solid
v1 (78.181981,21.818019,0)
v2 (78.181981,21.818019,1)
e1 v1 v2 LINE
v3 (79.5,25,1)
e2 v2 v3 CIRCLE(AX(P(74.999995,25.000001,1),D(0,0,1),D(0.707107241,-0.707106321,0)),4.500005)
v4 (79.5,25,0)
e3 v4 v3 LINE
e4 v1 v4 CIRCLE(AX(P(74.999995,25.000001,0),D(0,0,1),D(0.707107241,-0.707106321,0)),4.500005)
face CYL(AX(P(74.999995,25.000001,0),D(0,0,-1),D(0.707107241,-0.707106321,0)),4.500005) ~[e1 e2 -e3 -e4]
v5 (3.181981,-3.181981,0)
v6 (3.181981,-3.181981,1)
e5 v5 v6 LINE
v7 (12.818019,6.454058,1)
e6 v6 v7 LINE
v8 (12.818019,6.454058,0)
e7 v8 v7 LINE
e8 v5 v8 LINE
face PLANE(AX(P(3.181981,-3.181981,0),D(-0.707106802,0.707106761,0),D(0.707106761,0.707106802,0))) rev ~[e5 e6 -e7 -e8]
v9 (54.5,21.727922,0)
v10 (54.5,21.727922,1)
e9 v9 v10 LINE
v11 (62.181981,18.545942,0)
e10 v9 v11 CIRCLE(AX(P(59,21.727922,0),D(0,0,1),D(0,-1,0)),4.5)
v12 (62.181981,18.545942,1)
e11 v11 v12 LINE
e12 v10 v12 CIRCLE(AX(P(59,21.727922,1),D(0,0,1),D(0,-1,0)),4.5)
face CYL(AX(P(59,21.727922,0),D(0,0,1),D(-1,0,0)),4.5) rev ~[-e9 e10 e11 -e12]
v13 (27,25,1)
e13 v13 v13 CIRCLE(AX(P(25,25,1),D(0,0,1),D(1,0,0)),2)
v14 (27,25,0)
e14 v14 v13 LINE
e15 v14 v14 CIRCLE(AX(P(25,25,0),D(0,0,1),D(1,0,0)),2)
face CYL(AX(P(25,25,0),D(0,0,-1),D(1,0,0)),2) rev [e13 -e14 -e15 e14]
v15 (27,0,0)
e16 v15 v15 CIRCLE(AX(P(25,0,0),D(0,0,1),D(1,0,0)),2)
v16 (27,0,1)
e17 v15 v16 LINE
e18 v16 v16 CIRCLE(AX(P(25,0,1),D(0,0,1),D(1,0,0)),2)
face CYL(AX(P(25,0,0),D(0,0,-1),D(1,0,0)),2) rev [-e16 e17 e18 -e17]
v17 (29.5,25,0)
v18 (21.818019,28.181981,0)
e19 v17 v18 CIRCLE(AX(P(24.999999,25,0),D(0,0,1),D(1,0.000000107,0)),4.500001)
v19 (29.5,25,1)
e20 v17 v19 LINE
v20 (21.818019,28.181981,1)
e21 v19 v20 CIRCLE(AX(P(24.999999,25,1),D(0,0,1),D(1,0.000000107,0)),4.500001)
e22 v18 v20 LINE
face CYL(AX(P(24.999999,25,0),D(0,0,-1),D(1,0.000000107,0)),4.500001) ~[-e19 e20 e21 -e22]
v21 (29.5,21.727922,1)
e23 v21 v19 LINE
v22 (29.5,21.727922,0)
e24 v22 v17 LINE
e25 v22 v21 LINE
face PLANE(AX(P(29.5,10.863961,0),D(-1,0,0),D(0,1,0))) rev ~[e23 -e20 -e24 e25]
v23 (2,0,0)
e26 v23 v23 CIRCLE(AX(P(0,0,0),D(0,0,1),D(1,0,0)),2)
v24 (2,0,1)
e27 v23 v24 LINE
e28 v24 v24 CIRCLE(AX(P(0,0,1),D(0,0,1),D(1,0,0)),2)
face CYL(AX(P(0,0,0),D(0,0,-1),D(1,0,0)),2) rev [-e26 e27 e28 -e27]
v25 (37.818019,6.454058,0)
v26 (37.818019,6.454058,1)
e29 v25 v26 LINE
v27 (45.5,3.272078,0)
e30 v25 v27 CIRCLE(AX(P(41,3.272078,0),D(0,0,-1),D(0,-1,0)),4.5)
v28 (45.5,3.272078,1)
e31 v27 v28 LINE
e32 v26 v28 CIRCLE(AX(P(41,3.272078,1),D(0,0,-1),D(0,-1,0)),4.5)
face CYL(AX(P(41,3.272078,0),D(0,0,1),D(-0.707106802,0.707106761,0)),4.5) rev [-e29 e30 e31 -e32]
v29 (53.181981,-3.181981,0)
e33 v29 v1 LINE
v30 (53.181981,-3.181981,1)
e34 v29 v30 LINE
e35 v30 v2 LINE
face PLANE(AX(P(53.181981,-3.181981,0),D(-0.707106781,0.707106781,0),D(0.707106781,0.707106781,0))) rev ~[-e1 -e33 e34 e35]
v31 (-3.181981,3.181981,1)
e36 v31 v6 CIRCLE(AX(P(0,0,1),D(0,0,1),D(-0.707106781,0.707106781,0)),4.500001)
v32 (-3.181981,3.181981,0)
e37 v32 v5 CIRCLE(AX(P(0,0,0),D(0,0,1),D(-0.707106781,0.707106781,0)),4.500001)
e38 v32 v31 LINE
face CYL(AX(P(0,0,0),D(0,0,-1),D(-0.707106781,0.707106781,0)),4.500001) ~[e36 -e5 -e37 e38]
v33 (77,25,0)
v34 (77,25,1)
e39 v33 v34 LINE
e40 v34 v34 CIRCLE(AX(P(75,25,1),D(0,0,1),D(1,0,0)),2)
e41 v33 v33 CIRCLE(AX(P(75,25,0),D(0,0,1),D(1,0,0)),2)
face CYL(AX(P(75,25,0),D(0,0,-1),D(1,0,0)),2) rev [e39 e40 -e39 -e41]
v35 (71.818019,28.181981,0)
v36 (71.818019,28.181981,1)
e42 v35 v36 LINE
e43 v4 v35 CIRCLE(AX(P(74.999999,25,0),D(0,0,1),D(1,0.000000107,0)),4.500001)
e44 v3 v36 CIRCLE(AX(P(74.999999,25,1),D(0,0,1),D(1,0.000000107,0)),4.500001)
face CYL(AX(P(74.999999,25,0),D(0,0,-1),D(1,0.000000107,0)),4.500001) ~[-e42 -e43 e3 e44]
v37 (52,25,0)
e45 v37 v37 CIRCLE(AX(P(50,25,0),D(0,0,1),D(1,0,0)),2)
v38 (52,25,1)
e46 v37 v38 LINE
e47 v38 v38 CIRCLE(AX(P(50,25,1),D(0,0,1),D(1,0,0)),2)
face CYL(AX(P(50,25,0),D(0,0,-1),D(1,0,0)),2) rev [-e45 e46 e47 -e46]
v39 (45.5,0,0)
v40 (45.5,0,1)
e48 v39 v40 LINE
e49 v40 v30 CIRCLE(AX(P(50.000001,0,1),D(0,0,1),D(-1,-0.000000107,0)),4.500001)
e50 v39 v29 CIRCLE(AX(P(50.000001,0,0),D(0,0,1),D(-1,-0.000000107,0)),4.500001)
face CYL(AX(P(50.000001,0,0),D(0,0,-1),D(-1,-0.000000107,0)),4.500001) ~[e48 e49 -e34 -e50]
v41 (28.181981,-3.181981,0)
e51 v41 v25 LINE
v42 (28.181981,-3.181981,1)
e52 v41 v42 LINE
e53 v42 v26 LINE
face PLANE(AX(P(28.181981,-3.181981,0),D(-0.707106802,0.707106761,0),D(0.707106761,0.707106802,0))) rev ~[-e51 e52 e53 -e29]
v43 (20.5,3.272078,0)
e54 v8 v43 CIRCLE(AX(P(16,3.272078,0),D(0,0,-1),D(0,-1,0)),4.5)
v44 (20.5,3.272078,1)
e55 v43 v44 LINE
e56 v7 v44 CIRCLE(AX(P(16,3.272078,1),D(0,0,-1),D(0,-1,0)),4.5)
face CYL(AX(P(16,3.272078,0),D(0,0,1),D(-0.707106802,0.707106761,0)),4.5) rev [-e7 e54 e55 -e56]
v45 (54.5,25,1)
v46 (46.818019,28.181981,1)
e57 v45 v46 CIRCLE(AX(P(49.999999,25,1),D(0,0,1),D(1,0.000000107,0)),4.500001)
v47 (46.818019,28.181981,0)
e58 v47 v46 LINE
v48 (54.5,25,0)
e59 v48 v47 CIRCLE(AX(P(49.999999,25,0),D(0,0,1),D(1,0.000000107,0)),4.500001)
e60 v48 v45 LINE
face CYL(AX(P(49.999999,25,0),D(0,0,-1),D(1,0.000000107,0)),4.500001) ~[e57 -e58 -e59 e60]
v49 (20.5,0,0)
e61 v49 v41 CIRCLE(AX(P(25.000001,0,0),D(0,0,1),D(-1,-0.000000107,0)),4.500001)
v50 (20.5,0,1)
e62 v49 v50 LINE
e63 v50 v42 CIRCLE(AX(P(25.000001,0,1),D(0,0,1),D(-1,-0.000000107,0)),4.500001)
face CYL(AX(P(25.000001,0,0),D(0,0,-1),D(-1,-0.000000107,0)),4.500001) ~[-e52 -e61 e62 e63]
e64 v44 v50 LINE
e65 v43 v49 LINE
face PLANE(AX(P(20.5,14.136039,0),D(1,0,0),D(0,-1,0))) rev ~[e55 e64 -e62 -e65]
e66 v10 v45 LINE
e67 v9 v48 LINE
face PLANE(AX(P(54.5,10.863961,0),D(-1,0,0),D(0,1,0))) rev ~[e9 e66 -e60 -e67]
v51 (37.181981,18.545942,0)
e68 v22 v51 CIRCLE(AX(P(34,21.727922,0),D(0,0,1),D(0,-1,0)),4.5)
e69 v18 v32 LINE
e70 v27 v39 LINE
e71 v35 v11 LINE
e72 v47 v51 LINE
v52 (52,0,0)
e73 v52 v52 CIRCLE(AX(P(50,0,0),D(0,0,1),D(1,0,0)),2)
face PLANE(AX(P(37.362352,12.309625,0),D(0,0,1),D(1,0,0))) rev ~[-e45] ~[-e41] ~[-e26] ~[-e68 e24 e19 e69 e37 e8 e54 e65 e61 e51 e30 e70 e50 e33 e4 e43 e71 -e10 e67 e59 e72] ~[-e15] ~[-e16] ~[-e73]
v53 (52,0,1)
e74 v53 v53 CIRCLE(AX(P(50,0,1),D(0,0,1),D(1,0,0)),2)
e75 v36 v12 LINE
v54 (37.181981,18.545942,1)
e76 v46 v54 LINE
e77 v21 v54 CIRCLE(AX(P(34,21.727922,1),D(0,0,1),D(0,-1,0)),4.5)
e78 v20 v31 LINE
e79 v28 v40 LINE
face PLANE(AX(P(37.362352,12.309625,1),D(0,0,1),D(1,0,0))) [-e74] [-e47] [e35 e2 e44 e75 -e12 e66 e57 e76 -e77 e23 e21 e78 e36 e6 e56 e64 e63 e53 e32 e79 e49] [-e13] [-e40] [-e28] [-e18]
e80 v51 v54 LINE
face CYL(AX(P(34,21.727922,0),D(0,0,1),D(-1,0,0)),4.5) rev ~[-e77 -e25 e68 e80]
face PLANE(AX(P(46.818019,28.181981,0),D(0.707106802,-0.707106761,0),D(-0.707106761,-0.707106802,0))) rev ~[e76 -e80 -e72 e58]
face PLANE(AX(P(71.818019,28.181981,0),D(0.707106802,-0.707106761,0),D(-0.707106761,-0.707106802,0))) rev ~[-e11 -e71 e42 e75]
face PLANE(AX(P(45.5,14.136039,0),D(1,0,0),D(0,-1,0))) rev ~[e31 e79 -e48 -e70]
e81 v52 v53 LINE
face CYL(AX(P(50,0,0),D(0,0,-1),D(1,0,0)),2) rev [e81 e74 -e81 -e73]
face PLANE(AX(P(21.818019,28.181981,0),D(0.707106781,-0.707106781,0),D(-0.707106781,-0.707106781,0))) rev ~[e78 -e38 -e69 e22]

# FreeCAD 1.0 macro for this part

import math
import FreeCAD as App
import Part
import Sketcher

V = App.Vector
Q = App.Units.Quantity


def edges_at(feature, points):
    """Names of the edges that pass closest to the given points."""
    edges = feature.Shape.Edges
    near = lambda p: min(range(len(edges)), key=lambda i: edges[i].distToShape(Part.Vertex(*p))[0])
    return sorted({f"Edge{near(p) + 1}" for p in points})

doc = App.newDocument("Part")
body = doc.addObject("PartDesign::Body", "Body")

sketch1 = body.newObject("Sketcher::SketchObject", "Sketch")
sketch1.AttachmentSupport = (doc.getObject("XY_Plane"), [""])
sketch1.MapMode = "FlatFace"
sketch1.addGeometry([
    Part.LineSegment(V(21.8, 28.2, 0), V(-3.2, 3.2, 0)),
    Part.ArcOfCircle(Part.Circle(V(0, 0, 0), V(0, 0, 1), 4.5), math.radians(135), math.radians(315)),
    Part.LineSegment(V(3.2, -3.2, 0), V(20.5, 14.1, 0)),
    Part.LineSegment(V(20.5, 14.1, 0), V(20.5, 0, 0)),
    Part.ArcOfCircle(Part.Circle(V(25, 0, 0), V(0, 0, 1), 4.5), math.radians(-180), math.radians(-45)),
    Part.LineSegment(V(28.2, -3.2, 0), V(45.5, 14.1, 0)),
    Part.LineSegment(V(45.5, 14.1, 0), V(45.5, 0, 0)),
    Part.ArcOfCircle(Part.Circle(V(50, 0, 0), V(0, 0, 1), 4.5), math.radians(-180), math.radians(-45)),
    Part.LineSegment(V(53.2, -3.2, 0), V(78.2, 21.8, 0)),
    Part.ArcOfCircle(Part.Circle(V(75, 25, 0), V(0, 0, 1), 4.5), math.radians(-45), math.radians(0)),
    Part.ArcOfCircle(Part.Circle(V(75, 25, 0), V(0, 0, 1), 4.5), math.radians(0), math.radians(135)),
    Part.LineSegment(V(71.8, 28.2, 0), V(54.5, 10.9, 0)),
    Part.LineSegment(V(54.5, 10.9, 0), V(54.5, 25, 0)),
    Part.ArcOfCircle(Part.Circle(V(50, 25, 0), V(0, 0, 1), 4.5), math.radians(0), math.radians(135)),
    Part.LineSegment(V(46.8, 28.2, 0), V(29.5, 10.9, 0)),
    Part.LineSegment(V(29.5, 10.9, 0), V(29.5, 25, 0)),
    Part.ArcOfCircle(Part.Circle(V(25, 25, 0), V(0, 0, 1), 4.5), math.radians(0), math.radians(135)),
    Part.Circle(V(0, 0, 0), V(0, 0, 1), 2),
    Part.Circle(V(25, 0, 0), V(0, 0, 1), 2),
    Part.Circle(V(50, 0, 0), V(0, 0, 1), 2),
    Part.Circle(V(25, 25, 0), V(0, 0, 1), 2),
    Part.Circle(V(50, 25, 0), V(0, 0, 1), 2),
    Part.Circle(V(75, 25, 0), V(0, 0, 1), 2),
], False)
sketch1.addConstraint([
    Sketcher.Constraint("Tangent", 0, 2, 1, 1),
    Sketcher.Constraint("Tangent", 1, 2, 2, 1),
    Sketcher.Constraint("Coincident", 2, 2, 3, 1),
    Sketcher.Constraint("Tangent", 3, 2, 4, 1),
    Sketcher.Constraint("Tangent", 4, 2, 5, 1),
    Sketcher.Constraint("Coincident", 5, 2, 6, 1),
    Sketcher.Constraint("Tangent", 6, 2, 7, 1),
    Sketcher.Constraint("Tangent", 7, 2, 8, 1),
    Sketcher.Constraint("Tangent", 8, 2, 9, 1),
    Sketcher.Constraint("Tangent", 9, 2, 10, 1),
    Sketcher.Constraint("Tangent", 10, 2, 11, 1),
    Sketcher.Constraint("Coincident", 11, 2, 12, 1),
    Sketcher.Constraint("Tangent", 12, 2, 13, 1),
    Sketcher.Constraint("Tangent", 13, 2, 14, 1),
    Sketcher.Constraint("Coincident", 14, 2, 15, 1),
    Sketcher.Constraint("Tangent", 15, 2, 16, 1),
    Sketcher.Constraint("Tangent", 16, 2, 0, 1),
    Sketcher.Constraint("Vertical", 3),
    Sketcher.Constraint("Vertical", 6),
    Sketcher.Constraint("Vertical", 12),
    Sketcher.Constraint("Vertical", 15),
    Sketcher.Constraint("Coincident", 1, 3, -1, 1),
    Sketcher.Constraint("Coincident", 17, 3, -1, 1),
    Sketcher.Constraint("Coincident", 18, 3, 4, 3),
    Sketcher.Constraint("Coincident", 19, 3, 7, 3),
    Sketcher.Constraint("Coincident", 20, 3, 16, 3),
    Sketcher.Constraint("Coincident", 21, 3, 13, 3),
    Sketcher.Constraint("Coincident", 22, 3, 9, 3),
    Sketcher.Constraint("Equal", 1, 4),
    Sketcher.Constraint("Equal", 4, 7),
    Sketcher.Constraint("Equal", 7, 10),
    Sketcher.Constraint("Equal", 10, 13),
    Sketcher.Constraint("Equal", 13, 16),
    Sketcher.Constraint("Equal", 17, 18),
    Sketcher.Constraint("Equal", 18, 19),
    Sketcher.Constraint("Equal", 19, 20),
    Sketcher.Constraint("Equal", 20, 21),
    Sketcher.Constraint("Equal", 21, 22),
    Sketcher.Constraint("PointOnObject", 4, 3, -1),
    Sketcher.Constraint("PointOnObject", 7, 3, -1),
    Sketcher.Constraint("Parallel", 0, 2),
    Sketcher.Constraint("Parallel", 2, 5),
    Sketcher.Constraint("Parallel", 5, 8),
    Sketcher.Constraint("Parallel", 8, 11),
    Sketcher.Constraint("Parallel", 11, 14),
    Sketcher.Constraint("Horizontal", 10, 3, 13, 3),
    Sketcher.Constraint("Horizontal", 13, 3, 16, 3),
    Sketcher.Constraint("Horizontal", 2, 2, 5, 2),
    Sketcher.Constraint("Horizontal", 22, 3, 9, 2),
    Sketcher.Constraint("Horizontal", 11, 2, 14, 2),
    Sketcher.Constraint("Vertical", 7, 3, 13, 3),
    Sketcher.Constraint("Vertical", 4, 3, 16, 3),
    Sketcher.Constraint("Diameter", 17, 4.0),
    Sketcher.Constraint("Radius", 1, 4.500001),
    Sketcher.Constraint("Angle", 0, Q("-135 deg")),
    Sketcher.Constraint("DistanceX", -1, 1, 4, 3, 25.000001),
])
pad1 = body.newObject("PartDesign::Pad", "Pad")
pad1.Profile = sketch1
pad1.Length = 1
doc.recompute()

fillet = body.newObject("PartDesign::Fillet", "Fillet")
fillet.Base = (pad1, edges_at(pad1, [
    (20.5, 14.136, 0.5),
    (45.5, 14.136, 0.5),
    (29.5, 10.864, 0.5),
    (54.5, 10.864, 0.5),
]))
fillet.Radius = 4.5

doc.recompute()
